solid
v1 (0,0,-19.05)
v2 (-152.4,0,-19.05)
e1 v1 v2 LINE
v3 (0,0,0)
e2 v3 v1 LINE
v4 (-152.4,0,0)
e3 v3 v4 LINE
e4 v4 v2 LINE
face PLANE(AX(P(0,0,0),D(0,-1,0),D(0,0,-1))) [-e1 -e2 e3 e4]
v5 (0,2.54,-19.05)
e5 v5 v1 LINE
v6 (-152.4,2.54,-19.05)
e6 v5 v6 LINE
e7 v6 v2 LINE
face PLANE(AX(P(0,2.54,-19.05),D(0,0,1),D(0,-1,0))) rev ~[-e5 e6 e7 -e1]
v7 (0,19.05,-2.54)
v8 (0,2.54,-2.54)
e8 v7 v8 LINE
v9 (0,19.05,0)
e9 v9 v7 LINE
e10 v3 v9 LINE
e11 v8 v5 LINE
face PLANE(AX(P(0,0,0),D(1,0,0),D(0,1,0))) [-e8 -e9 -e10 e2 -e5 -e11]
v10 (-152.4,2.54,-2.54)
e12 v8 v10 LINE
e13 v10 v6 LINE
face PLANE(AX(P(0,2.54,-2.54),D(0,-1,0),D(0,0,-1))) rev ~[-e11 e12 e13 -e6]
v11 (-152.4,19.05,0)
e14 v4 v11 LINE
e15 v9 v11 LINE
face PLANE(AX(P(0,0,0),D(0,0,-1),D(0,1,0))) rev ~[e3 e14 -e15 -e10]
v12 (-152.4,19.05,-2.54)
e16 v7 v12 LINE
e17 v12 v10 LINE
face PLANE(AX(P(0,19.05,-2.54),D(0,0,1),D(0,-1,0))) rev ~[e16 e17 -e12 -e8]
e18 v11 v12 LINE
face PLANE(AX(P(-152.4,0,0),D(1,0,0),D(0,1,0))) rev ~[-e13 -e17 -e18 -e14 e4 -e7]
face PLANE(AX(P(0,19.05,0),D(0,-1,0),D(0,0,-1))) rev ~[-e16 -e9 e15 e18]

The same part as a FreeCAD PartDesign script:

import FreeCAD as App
import Part
import Sketcher
from FreeCAD import Vector
Q = App.Units.Quantity


def add_polygon(sketch, points):
    """Adds a closed chain of lines whose ends are joined by coincident constraints."""
    first, n = sketch.GeometryCount, len(points)
    for a, b in zip(points, points[1:] + points[:1]):
        sketch.addGeometry(Part.LineSegment(App.Vector(*a, 0), App.Vector(*b, 0)), False)
    for i in range(n):
        sketch.addConstraint(Sketcher.Constraint("Coincident", first + i, 2, first + (i + 1) % n, 1))

doc = App.newDocument("Part")
body = doc.addObject("PartDesign::Body", "Body")

# Sketch on YZ plane
sketch1 = body.newObject("Sketcher::SketchObject", "Sketch")
sketch1.AttachmentSupport = (doc.getObject("YZ_Plane"), [""])
sketch1.MapMode = "FlatFace"
add_polygon(sketch1, [(19.05, 0), (0, 0), (0, -19.05), (2.54, -19.05), (2.54, -2.54), (19.05, -2.54)])  # lines 0-5
sketch1.addConstraint(Sketcher.Constraint("Horizontal", 0))
sketch1.addConstraint(Sketcher.Constraint("Vertical", 1))
sketch1.addConstraint(Sketcher.Constraint("Horizontal", 2))
sketch1.addConstraint(Sketcher.Constraint("Vertical", 3))
sketch1.addConstraint(Sketcher.Constraint("Horizontal", 4))
sketch1.addConstraint(Sketcher.Constraint("Vertical", 5))
sketch1.addConstraint(Sketcher.Constraint("Coincident", 0, 2, -1, 1))
sketch1.addConstraint(Sketcher.Constraint("Equal", 0, 1))
sketch1.addConstraint(Sketcher.Constraint("Equal", 4, 3))
sketch1.addConstraint(Sketcher.Constraint("DistanceX", 2, 1, 2, 2, Q("0.1 in")))
sketch1.addConstraint(Sketcher.Constraint("DistanceX", 0, 2, 0, 1, Q("0.75 in")))
pad1 = body.newObject("PartDesign::Pad", "Pad")
pad1.Profile = sketch1
pad1.Length = Q("6 in")
pad1.Reversed = True

doc.recompute()
